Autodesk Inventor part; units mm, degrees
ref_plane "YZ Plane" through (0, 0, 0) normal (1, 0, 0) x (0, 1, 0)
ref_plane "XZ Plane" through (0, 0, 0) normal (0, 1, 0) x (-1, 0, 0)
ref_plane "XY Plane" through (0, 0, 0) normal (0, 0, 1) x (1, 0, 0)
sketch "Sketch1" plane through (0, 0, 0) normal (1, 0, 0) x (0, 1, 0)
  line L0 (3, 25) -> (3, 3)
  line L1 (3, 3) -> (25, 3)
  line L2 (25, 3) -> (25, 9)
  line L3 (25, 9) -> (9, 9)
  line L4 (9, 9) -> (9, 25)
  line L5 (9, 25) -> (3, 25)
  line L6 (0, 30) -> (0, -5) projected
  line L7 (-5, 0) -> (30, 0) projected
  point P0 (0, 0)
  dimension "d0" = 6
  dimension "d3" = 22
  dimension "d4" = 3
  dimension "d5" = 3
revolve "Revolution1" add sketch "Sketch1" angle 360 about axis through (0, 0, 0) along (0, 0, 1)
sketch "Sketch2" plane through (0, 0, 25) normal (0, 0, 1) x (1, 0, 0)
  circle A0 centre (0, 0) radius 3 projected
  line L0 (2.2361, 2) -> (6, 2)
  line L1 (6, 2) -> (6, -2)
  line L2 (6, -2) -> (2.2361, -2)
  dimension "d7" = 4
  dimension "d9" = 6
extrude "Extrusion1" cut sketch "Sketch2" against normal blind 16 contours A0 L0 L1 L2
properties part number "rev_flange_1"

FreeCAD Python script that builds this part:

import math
import FreeCAD as App
import Part
import Sketcher

V = App.Vector

doc = App.newDocument("Part")
body = doc.addObject("PartDesign::Body", "Body")

sketch1 = body.newObject("Sketcher::SketchObject", "Sketch")
sketch1.AttachmentSupport = (doc.getObject("YZ_Plane"), [""])
sketch1.MapMode = "FlatFace"
sketch1.addGeometry([
    Part.LineSegment(V(9, 25, 0), V(3, 25, 0)),
    Part.LineSegment(V(3, 25, 0), V(3, 3, 0)),
    Part.LineSegment(V(3, 3, 0), V(25, 3, 0)),
    Part.LineSegment(V(25, 3, 0), V(25, 9, 0)),
    Part.LineSegment(V(25, 9, 0), V(9, 9, 0)),
    Part.LineSegment(V(9, 9, 0), V(9, 25, 0)),
], False)
sketch1.addConstraint([
    Sketcher.Constraint("Coincident", 0, 2, 1, 1),
    Sketcher.Constraint("Coincident", 1, 2, 2, 1),
    Sketcher.Constraint("Coincident", 2, 2, 3, 1),
    Sketcher.Constraint("Coincident", 3, 2, 4, 1),
    Sketcher.Constraint("Coincident", 4, 2, 5, 1),
    Sketcher.Constraint("Coincident", 5, 2, 0, 1),
    Sketcher.Constraint("Horizontal", 0),
    Sketcher.Constraint("Vertical", 1),
    Sketcher.Constraint("Horizontal", 2),
    Sketcher.Constraint("Vertical", 3),
    Sketcher.Constraint("Horizontal", 4),
    Sketcher.Constraint("Vertical", 5),
    Sketcher.Constraint("Equal", 2, 1),
    Sketcher.Constraint("Equal", 0, 3),
    Sketcher.Constraint("DistanceX", 0, 2, 0, 1, 6.0),
    Sketcher.Constraint("DistanceX", 2, 1, 2, 2, 22.0),
    Sketcher.Constraint("DistanceX", -1, 1, 0, 2, 3.0),
    Sketcher.Constraint("DistanceY", -1, 1, 1, 2, 3.0),
])
revolution = body.newObject("PartDesign::Revolution", "Revolution")
revolution.Profile = sketch1
revolution.ReferenceAxis = (sketch1, ["V_Axis"])
revolution.Angle = 360

sketch2 = body.newObject("Sketcher::SketchObject", "Sketch001")
sketch2.AttachmentSupport = (doc.getObject("XY_Plane"), [""])
sketch2.MapMode = "FlatFace"
sketch2.AttachmentOffset = App.Placement(V(0, 0, 25), App.Rotation())
sketch2.addGeometry([
    Part.ArcOfCircle(Part.Circle(V(0, 0, 0), V(0, 0, 1), 3), math.radians(-42), math.radians(42)),
    Part.LineSegment(V(2.2, -2, 0), V(6, -2, 0)),
    Part.LineSegment(V(6, -2, 0), V(6, 2, 0)),
    Part.LineSegment(V(6, 2, 0), V(2.2, 2, 0)),
], False)
sketch2.addConstraint([
    Sketcher.Constraint("Coincident", 0, 1, 1, 1),
    Sketcher.Constraint("Coincident", 1, 2, 2, 1),
    Sketcher.Constraint("Coincident", 2, 2, 3, 1),
    Sketcher.Constraint("Coincident", 3, 2, 0, 2),
    Sketcher.Constraint("Horizontal", 1),
    Sketcher.Constraint("Vertical", 2),
    Sketcher.Constraint("Horizontal", 3),
    Sketcher.Constraint("Coincident", 0, 3, -1, 1),
    Sketcher.Constraint("Vertical", 0, 1, 3, 2),
    Sketcher.Constraint("Radius", 0, 3.0),
    Sketcher.Constraint("DistanceY", 2, 1, 2, 2, 4.0),
    Sketcher.Constraint("DistanceX", -1, 1, 1, 2, 6.0),
])
pocket1 = body.newObject("PartDesign::Pocket", "Pocket")
pocket1.Profile = sketch2
pocket1.Length = 16

doc.recompute()
